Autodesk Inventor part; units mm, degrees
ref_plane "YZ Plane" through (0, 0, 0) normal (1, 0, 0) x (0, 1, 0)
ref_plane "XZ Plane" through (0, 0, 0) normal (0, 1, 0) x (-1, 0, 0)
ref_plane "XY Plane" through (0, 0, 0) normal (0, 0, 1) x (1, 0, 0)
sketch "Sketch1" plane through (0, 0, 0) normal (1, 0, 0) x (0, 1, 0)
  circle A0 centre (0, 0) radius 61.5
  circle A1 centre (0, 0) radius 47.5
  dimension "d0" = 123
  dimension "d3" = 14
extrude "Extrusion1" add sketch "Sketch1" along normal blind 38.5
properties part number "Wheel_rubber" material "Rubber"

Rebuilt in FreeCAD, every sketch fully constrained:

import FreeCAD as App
import Part
import Sketcher
from FreeCAD import Vector
Q = App.Units.Quantity

doc = App.newDocument("Part")
body = doc.addObject("PartDesign::Body", "Body")

sketch1 = body.newObject("Sketcher::SketchObject", "Sketch")
sketch1.AttachmentSupport = (doc.getObject("YZ_Plane"), [""])
sketch1.MapMode = "FlatFace"
sketch1.addGeometry(Part.Circle(Vector(0, 0, 0), Vector(0, 0, 1), 62), False)
sketch1.addGeometry(Part.Circle(Vector(0, 0, 0), Vector(0, 0, 1), 48), False)
sketch1.addConstraint(Sketcher.Constraint("Coincident", 0, 3, -1, 1))
sketch1.addConstraint(Sketcher.Constraint("Coincident", 1, 3, -1, 1))
sketch1.addConstraint(Sketcher.Constraint("Diameter", 0, Q("123 mm")))
sketch1.addConstraint(Sketcher.Constraint("Diameter", 1, Q("95 mm")))
pad1 = body.newObject("PartDesign::Pad", "Pad")
pad1.Profile = sketch1
pad1.Length = 38.5

doc.recompute()
